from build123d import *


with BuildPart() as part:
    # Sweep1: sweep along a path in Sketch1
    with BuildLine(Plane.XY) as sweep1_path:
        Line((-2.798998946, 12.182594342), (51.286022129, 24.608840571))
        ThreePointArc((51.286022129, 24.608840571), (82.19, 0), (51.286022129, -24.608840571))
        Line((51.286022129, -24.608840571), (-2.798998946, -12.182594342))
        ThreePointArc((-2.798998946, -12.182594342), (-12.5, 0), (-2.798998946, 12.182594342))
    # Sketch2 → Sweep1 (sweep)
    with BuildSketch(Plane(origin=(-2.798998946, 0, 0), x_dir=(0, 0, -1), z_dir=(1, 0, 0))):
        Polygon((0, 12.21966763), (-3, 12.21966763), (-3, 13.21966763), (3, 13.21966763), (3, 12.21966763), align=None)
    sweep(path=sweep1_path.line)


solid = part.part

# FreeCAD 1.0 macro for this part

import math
import FreeCAD as App
import Part
import Sketcher

V = App.Vector
Q = App.Units.Quantity

doc = App.newDocument("Part")
params = doc.addObject("Spreadsheet::Sheet", "Params")
for row, (alias, value) in enumerate([
    ("sketch1_width", "1 mm"),
    ("sketch1_height", "6 mm"),
    ("sketch2_radius", "12.5 mm"),
    ("sketch2_radius2", "25.25 mm"),
], start=1):
    params.set(f"A{row}", alias)
    params.set(f"B{row}", "=" + value)
    params.setAlias(f"B{row}", alias)

body = doc.addObject("PartDesign::Body", "Body")

# Sketch on YZ plane
sketch1 = body.newObject("Sketcher::SketchObject", "Sketch")
sketch1.AttachmentSupport = (doc.getObject("YZ_Plane"), [""])
sketch1.MapMode = "FlatFace"
sketch1.AttachmentOffset = App.Placement(V(0, 0, -2.798999), App.Rotation())
sketch1.addGeometry(Part.LineSegment(V(12.2, 3, 0), V(12.2, -3, 0)), False)
sketch1.addGeometry(Part.LineSegment(V(12.2, -3, 0), V(13.2, -3, 0)), False)
sketch1.addGeometry(Part.LineSegment(V(13.2, -3, 0), V(13.2, 3, 0)), False)
sketch1.addGeometry(Part.LineSegment(V(13.2, 3, 0), V(12.2, 3, 0)), False)
sketch1.addConstraint(Sketcher.Constraint("Coincident", 0, 2, 1, 1))
sketch1.addConstraint(Sketcher.Constraint("Coincident", 1, 2, 2, 1))
sketch1.addConstraint(Sketcher.Constraint("Coincident", 2, 2, 3, 1))
sketch1.addConstraint(Sketcher.Constraint("Coincident", 3, 2, 0, 1))
sketch1.addConstraint(Sketcher.Constraint("Vertical", 0))
sketch1.addConstraint(Sketcher.Constraint("Horizontal", 1))
sketch1.addConstraint(Sketcher.Constraint("Vertical", 2))
sketch1.addConstraint(Sketcher.Constraint("Horizontal", 3))
sketch1.addConstraint(Sketcher.Constraint("DistanceX", 1, 1, 1, 2, Q("1 mm")))
sketch1.addConstraint(Sketcher.Constraint("DistanceY", 0, 2, 0, 1, Q("6 mm")))
sketch1.addConstraint(Sketcher.Constraint("DistanceY", 0, 2, -1, 1, Q("3 mm")))
sketch1.addConstraint(Sketcher.Constraint("DistanceX", -1, 1, 0, 2, Q("12.219668 mm")))
sketch1.setExpression("Constraints[8]", "Params.sketch1_width")
sketch1.setExpression("Constraints[9]", "Params.sketch1_height")

# Sketch on XY plane
sketch2 = body.newObject("Sketcher::SketchObject", "Sketch001")
sketch2.AttachmentSupport = (doc.getObject("XY_Plane"), [""])
sketch2.MapMode = "FlatFace"
sketch2.addGeometry(Part.LineSegment(V(-3, 12, 0), V(51, 25, 0)), False)
sketch2.addGeometry(Part.ArcOfCircle(Part.Circle(V(57, 0, 0), V(0, 0, 1), 25), math.radians(-103), math.radians(103)), False)
sketch2.addGeometry(Part.LineSegment(V(51, -25, 0), V(-3, -12, 0)), False)
sketch2.addGeometry(Part.ArcOfCircle(Part.Circle(V(0, 0, 0), V(0, 0, 1), 12), math.radians(103), math.radians(257)), False)
sketch2.addConstraint(Sketcher.Constraint("Tangent", 0, 2, 1, 2))
sketch2.addConstraint(Sketcher.Constraint("Tangent", 1, 1, 2, 1))
sketch2.addConstraint(Sketcher.Constraint("Tangent", 2, 2, 3, 2))
sketch2.addConstraint(Sketcher.Constraint("Tangent", 3, 1, 0, 1))
sketch2.addConstraint(Sketcher.Constraint("Coincident", 3, 3, -1, 1))
sketch2.addConstraint(Sketcher.Constraint("PointOnObject", 1, 3, -1))
sketch2.addConstraint(Sketcher.Constraint("Radius", 3, Q("12.5 mm")))
sketch2.addConstraint(Sketcher.Constraint("Radius", 1, Q("25.25 mm")))
sketch2.addConstraint(Sketcher.Constraint("DistanceX", -1, 1, 1, 3, Q("56.94 mm")))
sketch2.setExpression("Constraints[6]", "Params.sketch2_radius")
sketch2.setExpression("Constraints[7]", "Params.sketch2_radius2")
doc.recompute()

additivepipe = body.newObject("PartDesign::AdditivePipe", "AdditivePipe")
additivepipe.Profile = sketch1
additivepipe.Spine = (sketch2, ["Edge1", "Edge2", "Edge3", "Edge4"])

doc.recompute()
